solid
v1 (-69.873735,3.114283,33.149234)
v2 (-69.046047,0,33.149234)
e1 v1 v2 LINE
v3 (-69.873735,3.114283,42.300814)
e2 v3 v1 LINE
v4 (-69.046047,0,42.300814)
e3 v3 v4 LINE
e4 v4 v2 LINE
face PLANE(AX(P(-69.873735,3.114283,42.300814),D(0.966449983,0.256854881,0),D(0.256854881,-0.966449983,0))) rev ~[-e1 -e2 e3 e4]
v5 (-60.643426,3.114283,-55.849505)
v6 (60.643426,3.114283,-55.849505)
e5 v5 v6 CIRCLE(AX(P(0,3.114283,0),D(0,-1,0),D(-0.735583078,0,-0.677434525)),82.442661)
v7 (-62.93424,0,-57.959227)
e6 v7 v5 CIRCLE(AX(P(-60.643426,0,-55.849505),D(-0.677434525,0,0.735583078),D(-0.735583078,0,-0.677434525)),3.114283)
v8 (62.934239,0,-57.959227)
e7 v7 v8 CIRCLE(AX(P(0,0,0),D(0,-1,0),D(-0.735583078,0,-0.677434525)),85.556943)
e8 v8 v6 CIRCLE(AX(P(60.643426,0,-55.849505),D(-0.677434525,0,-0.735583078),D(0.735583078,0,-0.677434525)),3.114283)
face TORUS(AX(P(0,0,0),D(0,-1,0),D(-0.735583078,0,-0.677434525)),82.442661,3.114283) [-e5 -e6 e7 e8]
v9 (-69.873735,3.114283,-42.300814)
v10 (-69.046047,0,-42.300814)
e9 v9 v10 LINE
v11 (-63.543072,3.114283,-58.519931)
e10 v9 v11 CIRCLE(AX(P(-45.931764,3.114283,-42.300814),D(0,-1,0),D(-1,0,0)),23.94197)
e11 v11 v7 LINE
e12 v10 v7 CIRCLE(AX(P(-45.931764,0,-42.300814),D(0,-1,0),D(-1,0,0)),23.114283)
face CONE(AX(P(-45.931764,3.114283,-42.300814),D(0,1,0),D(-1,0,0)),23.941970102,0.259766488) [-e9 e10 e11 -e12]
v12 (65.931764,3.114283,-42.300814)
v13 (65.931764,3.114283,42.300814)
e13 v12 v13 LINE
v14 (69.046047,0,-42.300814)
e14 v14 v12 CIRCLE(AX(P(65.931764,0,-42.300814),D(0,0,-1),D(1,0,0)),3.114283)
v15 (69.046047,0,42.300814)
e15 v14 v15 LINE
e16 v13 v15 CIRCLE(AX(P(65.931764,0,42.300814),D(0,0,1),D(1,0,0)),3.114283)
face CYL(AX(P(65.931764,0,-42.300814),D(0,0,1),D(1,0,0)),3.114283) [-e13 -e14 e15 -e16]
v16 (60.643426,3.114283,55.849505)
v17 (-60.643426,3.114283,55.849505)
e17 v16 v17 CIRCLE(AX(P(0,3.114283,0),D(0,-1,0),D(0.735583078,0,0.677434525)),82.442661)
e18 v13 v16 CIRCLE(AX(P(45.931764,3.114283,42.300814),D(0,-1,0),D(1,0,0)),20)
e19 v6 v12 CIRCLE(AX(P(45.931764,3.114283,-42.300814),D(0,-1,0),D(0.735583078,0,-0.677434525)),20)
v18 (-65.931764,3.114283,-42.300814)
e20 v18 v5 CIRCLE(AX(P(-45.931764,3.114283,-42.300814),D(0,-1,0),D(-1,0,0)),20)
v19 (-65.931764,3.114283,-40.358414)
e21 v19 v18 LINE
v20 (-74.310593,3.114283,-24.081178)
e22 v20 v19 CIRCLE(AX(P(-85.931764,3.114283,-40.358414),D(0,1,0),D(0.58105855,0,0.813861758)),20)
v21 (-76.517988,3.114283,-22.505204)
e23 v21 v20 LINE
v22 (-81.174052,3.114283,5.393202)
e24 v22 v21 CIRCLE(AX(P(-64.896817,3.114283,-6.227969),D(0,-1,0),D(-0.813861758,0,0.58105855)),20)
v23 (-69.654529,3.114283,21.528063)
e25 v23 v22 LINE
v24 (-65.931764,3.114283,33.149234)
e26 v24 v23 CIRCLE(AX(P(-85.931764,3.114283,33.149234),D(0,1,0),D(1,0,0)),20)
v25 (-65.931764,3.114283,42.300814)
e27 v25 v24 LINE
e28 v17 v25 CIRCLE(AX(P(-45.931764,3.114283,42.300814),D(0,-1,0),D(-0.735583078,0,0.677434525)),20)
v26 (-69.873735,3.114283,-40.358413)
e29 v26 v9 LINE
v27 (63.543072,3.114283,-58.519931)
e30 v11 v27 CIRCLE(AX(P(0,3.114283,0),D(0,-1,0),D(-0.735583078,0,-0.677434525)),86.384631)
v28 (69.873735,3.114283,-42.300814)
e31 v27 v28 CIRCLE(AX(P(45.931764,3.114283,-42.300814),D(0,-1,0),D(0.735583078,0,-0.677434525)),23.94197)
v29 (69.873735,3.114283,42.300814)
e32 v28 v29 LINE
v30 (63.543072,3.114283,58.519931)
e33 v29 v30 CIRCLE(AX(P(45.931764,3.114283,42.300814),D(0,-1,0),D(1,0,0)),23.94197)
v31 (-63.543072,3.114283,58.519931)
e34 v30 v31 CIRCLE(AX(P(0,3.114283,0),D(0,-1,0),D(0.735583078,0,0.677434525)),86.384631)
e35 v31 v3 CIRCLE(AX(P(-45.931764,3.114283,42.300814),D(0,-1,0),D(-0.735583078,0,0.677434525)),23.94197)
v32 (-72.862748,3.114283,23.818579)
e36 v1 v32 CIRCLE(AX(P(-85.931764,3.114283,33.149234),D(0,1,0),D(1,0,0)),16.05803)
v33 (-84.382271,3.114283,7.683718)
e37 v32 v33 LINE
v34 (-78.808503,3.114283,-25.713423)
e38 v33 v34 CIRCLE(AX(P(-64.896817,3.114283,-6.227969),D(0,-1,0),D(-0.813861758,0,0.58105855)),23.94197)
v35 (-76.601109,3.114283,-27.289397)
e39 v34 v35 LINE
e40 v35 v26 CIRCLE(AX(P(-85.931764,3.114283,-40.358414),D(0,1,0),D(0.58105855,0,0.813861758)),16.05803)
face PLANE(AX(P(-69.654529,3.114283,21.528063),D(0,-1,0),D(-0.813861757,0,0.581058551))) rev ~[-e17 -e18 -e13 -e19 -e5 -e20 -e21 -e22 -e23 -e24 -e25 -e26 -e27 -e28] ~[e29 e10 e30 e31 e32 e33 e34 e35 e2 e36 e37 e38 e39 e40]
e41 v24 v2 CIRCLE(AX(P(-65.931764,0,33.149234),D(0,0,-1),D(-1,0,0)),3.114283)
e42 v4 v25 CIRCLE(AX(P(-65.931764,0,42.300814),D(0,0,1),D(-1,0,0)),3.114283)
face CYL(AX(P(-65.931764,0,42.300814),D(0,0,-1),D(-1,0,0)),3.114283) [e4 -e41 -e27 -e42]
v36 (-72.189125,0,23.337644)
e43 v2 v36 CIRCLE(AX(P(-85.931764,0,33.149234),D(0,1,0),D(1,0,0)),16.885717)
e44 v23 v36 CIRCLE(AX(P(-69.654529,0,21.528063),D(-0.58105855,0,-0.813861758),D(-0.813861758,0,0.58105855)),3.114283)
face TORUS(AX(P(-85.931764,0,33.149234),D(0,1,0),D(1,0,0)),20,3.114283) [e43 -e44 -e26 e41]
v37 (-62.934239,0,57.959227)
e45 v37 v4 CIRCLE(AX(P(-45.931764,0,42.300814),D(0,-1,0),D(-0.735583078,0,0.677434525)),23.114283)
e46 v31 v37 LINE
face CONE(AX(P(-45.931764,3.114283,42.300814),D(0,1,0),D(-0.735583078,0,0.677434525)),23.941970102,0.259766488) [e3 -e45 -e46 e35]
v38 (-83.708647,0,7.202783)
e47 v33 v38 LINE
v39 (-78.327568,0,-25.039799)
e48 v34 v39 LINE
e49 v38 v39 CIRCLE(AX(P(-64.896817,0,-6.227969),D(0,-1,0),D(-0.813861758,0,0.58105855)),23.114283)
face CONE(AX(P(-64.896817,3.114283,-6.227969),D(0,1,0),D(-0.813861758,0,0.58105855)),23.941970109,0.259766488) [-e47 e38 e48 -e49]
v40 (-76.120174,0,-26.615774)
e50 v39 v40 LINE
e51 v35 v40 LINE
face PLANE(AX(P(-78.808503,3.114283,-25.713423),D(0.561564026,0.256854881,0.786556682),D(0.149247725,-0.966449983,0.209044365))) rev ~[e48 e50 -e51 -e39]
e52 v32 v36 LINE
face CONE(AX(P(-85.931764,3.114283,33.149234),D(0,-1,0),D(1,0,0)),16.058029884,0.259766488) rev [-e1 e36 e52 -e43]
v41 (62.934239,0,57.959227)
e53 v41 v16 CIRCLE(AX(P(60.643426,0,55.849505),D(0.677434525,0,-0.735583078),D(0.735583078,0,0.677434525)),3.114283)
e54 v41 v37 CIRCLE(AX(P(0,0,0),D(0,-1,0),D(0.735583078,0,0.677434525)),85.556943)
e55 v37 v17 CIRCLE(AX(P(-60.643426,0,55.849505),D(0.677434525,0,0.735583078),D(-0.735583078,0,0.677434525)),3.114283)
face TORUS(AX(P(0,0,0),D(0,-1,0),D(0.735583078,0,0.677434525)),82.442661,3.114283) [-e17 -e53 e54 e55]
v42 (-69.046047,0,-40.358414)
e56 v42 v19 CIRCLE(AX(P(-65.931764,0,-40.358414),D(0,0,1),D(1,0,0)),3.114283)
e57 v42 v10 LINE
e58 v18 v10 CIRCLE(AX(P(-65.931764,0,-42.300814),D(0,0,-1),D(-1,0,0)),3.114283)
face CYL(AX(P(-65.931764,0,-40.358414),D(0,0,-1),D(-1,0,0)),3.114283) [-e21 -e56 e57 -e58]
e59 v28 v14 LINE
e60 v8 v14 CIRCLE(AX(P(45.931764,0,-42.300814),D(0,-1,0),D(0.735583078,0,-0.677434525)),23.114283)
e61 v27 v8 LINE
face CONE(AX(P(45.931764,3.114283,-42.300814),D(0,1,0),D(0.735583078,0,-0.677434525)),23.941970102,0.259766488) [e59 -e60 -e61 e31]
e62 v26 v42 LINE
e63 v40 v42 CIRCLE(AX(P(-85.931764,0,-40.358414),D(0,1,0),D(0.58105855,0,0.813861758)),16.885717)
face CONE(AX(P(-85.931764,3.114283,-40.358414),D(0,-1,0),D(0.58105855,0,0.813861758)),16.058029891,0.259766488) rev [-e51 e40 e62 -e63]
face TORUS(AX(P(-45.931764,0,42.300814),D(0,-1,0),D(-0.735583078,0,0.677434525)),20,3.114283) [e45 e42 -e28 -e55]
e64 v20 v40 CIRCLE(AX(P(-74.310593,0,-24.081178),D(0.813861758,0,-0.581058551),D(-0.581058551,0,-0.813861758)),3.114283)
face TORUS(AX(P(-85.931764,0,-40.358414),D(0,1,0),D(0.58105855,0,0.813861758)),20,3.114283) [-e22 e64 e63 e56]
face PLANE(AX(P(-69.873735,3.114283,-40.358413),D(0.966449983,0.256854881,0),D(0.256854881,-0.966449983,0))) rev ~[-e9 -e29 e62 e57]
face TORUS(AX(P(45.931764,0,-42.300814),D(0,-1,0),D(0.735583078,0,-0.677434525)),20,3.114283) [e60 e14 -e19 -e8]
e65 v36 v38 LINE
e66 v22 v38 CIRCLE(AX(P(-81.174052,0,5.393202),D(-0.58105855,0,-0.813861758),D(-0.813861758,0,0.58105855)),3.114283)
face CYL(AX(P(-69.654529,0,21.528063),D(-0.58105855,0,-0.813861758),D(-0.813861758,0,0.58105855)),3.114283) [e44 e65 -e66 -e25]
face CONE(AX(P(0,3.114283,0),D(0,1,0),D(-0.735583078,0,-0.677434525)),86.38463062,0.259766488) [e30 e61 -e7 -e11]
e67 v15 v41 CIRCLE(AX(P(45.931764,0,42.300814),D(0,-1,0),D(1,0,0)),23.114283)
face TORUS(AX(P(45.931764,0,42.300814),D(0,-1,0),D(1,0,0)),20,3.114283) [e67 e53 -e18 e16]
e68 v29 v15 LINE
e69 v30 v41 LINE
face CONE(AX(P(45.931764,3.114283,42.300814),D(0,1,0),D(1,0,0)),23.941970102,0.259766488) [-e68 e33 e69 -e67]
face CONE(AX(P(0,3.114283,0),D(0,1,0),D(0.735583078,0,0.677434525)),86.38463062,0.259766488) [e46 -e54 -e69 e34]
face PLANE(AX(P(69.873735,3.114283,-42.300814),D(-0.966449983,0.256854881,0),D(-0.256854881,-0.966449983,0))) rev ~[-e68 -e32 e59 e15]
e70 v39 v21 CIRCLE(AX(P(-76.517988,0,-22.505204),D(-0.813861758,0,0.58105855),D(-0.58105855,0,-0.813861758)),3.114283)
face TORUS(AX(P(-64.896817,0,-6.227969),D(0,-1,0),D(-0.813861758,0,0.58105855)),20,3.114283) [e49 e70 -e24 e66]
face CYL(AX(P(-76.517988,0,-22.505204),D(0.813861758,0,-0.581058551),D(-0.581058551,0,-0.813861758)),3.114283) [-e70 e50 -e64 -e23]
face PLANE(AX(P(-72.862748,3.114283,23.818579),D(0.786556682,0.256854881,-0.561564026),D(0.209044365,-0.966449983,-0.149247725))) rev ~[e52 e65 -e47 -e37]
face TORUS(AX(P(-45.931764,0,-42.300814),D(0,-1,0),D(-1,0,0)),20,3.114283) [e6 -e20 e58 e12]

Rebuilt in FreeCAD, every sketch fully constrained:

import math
import FreeCAD as App
import Part
import Sketcher

V = App.Vector
Q = App.Units.Quantity

doc = App.newDocument("Part")
params = doc.addObject("Spreadsheet::Sheet", "Params")
for row, (alias, value) in enumerate([
    ("sketch2_radius", "20 mm"),
], start=1):
    params.set(f"A{row}", alias)
    params.set(f"B{row}", "=" + value)
    params.setAlias(f"B{row}", alias)

body = doc.addObject("PartDesign::Body", "Body")

sketch1 = body.newObject("Sketcher::SketchObject", "Sketch")
sketch1.AttachmentSupport = (doc.getObject("YZ_Plane"), [""])
sketch1.MapMode = "FlatFace"
sketch1.addGeometry([
    Part.LineSegment(V(3.1, 82.4, 0), V(3.1, 86.4, 0)),
    Part.LineSegment(V(3.1, 86.4, 0), V(0, 85.6, 0)),
    Part.ArcOfCircle(Part.Circle(V(0, 82.4, 0), V(0, 0, 1), 3.1), math.radians(90), math.radians(360)),
], False)
sketch1.addConstraint([
    Sketcher.Constraint("Coincident", 0, 2, 1, 1),
    Sketcher.Constraint("Coincident", 1, 2, 2, 1),
    Sketcher.Constraint("Tangent", 2, 2, 0, 1),
    Sketcher.Constraint("Vertical", 0),
    Sketcher.Constraint("PointOnObject", 2, 3, -2),
    Sketcher.Constraint("PointOnObject", 1, 2, -2),
    Sketcher.Constraint("Radius", 2, Q("3.114283 mm")),
    Sketcher.Constraint("DistanceY", 0, 1, 0, 2, Q("3.94197 mm")),
    Sketcher.Constraint("DistanceY", -1, 1, 2, 3, Q("82.442661 mm")),
])

sketch2 = body.newObject("Sketcher::SketchObject", "Sketch001")
sketch2.AttachmentSupport = (doc.getObject("XZ_Plane"), [""])
sketch2.MapMode = "FlatFace"
sketch2.addGeometry([
    Part.LineSegment(V(-69.7, 21.5, 0), V(-81.2, 5.4, 0)),
    Part.ArcOfCircle(Part.Circle(V(-64.9, -6.2, 0), V(0, 0, 1), 20), math.radians(144), math.radians(234)),
    Part.LineSegment(V(-76.5, -22.5, 0), V(-74.3, -24.1, 0)),
    Part.ArcOfCircle(Part.Circle(V(-85.9, -40.4, 0), V(0, 0, 1), 20), math.radians(0), math.radians(54)),
    Part.LineSegment(V(-65.9, -40.4, 0), V(-65.9, -42.3, 0)),
    Part.ArcOfCircle(Part.Circle(V(-45.9, -42.3, 0), V(0, 0, 1), 20), math.radians(180), math.radians(223)),
    Part.ArcOfCircle(Part.Circle(V(0, 0, 0), V(0, 0, 1), 82.4), math.radians(-137), math.radians(-43)),
    Part.ArcOfCircle(Part.Circle(V(45.9, -42.3, 0), V(0, 0, 1), 20), math.radians(-43), math.radians(0)),
    Part.LineSegment(V(65.9, -42.3, 0), V(65.9, 42.3, 0)),
    Part.ArcOfCircle(Part.Circle(V(45.9, 42.3, 0), V(0, 0, 1), 20), math.radians(0), math.radians(43)),
    Part.ArcOfCircle(Part.Circle(V(0, 0, 0), V(0, 0, 1), 82.4), math.radians(43), math.radians(137)),
    Part.ArcOfCircle(Part.Circle(V(-45.9, 42.3, 0), V(0, 0, 1), 20), math.radians(137), math.radians(180)),
    Part.LineSegment(V(-65.9, 42.3, 0), V(-65.9, 33.1, 0)),
    Part.ArcOfCircle(Part.Circle(V(-85.9, 33.1, 0), V(0, 0, 1), 20), math.radians(-36), math.radians(0)),
], False)
sketch2.addConstraint([
    Sketcher.Constraint("Tangent", 0, 2, 1, 1),
    Sketcher.Constraint("Tangent", 1, 2, 2, 1),
    Sketcher.Constraint("Tangent", 2, 2, 3, 2),
    Sketcher.Constraint("Tangent", 3, 1, 4, 1),
    Sketcher.Constraint("Tangent", 4, 2, 5, 1),
    Sketcher.Constraint("Tangent", 5, 2, 6, 1),
    Sketcher.Constraint("Tangent", 6, 2, 7, 1),
    Sketcher.Constraint("Tangent", 7, 2, 8, 1),
    Sketcher.Constraint("Tangent", 8, 2, 9, 1),
    Sketcher.Constraint("Tangent", 9, 2, 10, 1),
    Sketcher.Constraint("Tangent", 10, 2, 11, 1),
    Sketcher.Constraint("Tangent", 11, 2, 12, 1),
    Sketcher.Constraint("Tangent", 12, 2, 13, 2),
    Sketcher.Constraint("Tangent", 13, 1, 0, 1),
    Sketcher.Constraint("Vertical", 4),
    Sketcher.Constraint("Vertical", 8),
    Sketcher.Constraint("Vertical", 12),
    Sketcher.Constraint("Coincident", 6, 3, -1, 1),
    Sketcher.Constraint("Coincident", 10, 3, -1, 1),
    Sketcher.Constraint("Equal", 1, 3),
    Sketcher.Constraint("Equal", 3, 5),
    Sketcher.Constraint("Equal", 5, 7),
    Sketcher.Constraint("Equal", 7, 9),
    Sketcher.Constraint("Equal", 6, 10),
    Sketcher.Constraint("Equal", 9, 11),
    Sketcher.Constraint("Equal", 11, 13),
    Sketcher.Constraint("Perpendicular", 0, 2),
    Sketcher.Constraint("Horizontal", 5, 3, 7, 3),
    Sketcher.Constraint("Horizontal", 9, 3, 11, 3),
    Sketcher.Constraint("Radius", 1, Q("20 mm")),
    Sketcher.Constraint("Radius", 6, Q("82.442661 mm")),
    Sketcher.Constraint("DistanceY", 4, 2, 4, 1, Q("1.942401 mm")),
    Sketcher.Constraint("DistanceY", 8, 1, 8, 2, Q("84.601628 mm")),
    Sketcher.Constraint("DistanceY", 12, 2, 12, 1, Q("9.15158 mm")),
    Sketcher.Constraint("DistanceY", 1, 3, -1, 1, Q("6.227969 mm")),
])
sketch2.setExpression("Constraints[29]", "Params.sketch2_radius")
doc.recompute()

additivepipe = body.newObject("PartDesign::AdditivePipe", "AdditivePipe")
additivepipe.Profile = sketch1
additivepipe.Spine = (sketch2, ["Edge1", "Edge2", "Edge3", "Edge4", "Edge5", "Edge6", "Edge7", "Edge8", "Edge9", "Edge10", "Edge11", "Edge12", "Edge13", "Edge14"])

doc.recompute()
